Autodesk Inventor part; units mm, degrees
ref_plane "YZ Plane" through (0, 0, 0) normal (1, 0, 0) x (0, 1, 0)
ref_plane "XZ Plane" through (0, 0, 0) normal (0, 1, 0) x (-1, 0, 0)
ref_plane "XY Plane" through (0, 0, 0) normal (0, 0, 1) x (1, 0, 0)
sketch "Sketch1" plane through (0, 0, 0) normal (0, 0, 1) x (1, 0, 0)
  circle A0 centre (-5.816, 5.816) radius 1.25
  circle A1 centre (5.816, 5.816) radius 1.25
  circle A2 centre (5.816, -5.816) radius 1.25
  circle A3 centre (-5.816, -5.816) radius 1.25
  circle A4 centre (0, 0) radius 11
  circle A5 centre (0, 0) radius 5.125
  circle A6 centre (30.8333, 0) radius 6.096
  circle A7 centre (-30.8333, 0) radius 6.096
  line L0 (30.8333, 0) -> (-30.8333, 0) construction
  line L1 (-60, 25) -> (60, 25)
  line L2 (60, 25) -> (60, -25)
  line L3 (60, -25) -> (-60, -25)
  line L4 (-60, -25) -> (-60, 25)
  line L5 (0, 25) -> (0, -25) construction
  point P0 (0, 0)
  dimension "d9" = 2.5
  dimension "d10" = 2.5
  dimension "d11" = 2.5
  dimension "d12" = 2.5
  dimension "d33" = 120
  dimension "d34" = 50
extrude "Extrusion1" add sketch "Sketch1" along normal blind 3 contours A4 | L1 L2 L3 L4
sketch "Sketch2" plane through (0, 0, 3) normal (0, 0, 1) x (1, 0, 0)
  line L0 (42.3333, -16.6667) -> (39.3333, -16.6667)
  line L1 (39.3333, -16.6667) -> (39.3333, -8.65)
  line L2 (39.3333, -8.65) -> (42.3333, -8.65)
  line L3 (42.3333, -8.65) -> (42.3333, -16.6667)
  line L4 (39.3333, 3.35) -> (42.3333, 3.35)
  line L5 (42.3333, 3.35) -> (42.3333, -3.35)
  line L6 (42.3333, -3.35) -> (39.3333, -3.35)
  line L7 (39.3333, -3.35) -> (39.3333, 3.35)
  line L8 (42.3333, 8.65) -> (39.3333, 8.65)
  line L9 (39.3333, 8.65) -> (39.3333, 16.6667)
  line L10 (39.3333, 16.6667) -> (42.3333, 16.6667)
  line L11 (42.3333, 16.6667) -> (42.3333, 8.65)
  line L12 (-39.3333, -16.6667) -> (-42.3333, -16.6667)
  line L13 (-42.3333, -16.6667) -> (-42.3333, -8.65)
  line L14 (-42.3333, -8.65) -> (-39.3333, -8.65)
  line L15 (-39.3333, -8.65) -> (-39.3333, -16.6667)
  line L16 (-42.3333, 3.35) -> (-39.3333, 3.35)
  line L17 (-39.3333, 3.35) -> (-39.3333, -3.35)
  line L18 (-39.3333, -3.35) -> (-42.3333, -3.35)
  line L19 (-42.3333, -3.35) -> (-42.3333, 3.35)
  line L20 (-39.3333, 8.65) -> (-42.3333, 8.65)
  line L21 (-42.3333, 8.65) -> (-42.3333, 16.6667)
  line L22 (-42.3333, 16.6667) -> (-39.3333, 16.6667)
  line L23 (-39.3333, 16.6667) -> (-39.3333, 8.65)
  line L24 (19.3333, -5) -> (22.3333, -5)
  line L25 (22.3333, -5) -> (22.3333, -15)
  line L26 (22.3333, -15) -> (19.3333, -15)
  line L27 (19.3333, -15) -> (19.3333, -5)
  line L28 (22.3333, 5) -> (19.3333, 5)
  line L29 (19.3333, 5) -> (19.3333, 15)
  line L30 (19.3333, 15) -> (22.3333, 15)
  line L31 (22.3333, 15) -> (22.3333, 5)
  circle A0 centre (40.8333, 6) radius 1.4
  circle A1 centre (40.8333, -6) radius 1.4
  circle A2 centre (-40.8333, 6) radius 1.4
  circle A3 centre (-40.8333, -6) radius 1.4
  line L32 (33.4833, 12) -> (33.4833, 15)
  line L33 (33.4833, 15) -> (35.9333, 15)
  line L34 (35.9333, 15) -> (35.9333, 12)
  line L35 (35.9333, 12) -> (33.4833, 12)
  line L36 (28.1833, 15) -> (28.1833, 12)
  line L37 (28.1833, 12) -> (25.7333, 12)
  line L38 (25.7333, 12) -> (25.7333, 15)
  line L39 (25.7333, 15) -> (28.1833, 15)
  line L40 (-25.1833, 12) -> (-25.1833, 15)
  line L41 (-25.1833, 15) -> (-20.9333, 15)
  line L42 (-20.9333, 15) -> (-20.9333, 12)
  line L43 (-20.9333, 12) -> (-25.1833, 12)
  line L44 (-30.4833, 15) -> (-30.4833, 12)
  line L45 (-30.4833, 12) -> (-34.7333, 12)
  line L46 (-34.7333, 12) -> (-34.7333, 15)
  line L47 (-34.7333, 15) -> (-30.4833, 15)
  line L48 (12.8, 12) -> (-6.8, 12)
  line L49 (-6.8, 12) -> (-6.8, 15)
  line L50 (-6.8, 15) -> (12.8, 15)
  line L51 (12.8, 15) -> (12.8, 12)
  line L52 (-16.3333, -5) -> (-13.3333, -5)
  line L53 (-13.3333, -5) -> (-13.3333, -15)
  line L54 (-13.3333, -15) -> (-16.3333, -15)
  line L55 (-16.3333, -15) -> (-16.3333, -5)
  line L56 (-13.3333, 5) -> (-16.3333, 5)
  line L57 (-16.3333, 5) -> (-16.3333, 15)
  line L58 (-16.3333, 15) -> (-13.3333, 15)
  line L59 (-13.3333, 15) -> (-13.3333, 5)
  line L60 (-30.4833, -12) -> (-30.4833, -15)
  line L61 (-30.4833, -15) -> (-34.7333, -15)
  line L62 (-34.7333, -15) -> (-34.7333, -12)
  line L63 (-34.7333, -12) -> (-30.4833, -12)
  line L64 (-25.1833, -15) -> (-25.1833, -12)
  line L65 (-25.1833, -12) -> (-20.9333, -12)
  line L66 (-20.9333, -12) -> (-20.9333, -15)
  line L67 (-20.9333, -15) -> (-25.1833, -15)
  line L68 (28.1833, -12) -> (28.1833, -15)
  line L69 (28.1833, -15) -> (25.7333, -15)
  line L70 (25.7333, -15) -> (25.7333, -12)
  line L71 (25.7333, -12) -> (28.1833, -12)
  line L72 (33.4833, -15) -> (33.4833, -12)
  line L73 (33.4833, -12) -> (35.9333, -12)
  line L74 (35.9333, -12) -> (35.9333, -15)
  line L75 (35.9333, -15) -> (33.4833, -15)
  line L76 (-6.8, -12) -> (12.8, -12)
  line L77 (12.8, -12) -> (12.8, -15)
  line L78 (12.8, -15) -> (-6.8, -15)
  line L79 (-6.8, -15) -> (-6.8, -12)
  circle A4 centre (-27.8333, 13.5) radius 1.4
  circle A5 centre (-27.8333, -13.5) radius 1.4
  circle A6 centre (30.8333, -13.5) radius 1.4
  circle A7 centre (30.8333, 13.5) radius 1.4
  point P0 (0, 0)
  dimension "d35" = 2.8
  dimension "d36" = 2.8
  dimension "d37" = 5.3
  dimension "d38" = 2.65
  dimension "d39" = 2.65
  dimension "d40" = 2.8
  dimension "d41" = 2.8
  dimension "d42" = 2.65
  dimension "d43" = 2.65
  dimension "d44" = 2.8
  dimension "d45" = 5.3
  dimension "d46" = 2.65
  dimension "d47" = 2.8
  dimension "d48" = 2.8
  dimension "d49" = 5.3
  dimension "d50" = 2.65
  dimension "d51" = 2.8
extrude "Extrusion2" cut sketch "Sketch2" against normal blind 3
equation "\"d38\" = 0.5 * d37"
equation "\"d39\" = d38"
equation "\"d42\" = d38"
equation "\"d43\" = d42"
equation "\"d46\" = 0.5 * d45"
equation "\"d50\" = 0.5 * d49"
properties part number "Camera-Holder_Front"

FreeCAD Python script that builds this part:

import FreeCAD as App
import Part
import Sketcher

V = App.Vector
Q = App.Units.Quantity


def add_polygon(sketch, points):
    """Adds a closed chain of lines whose ends are joined by coincident constraints."""
    first, n = sketch.GeometryCount, len(points)
    for a, b in zip(points, points[1:] + points[:1]):
        sketch.addGeometry(Part.LineSegment(App.Vector(*a, 0), App.Vector(*b, 0)), False)
    for i in range(n):
        sketch.addConstraint(Sketcher.Constraint("Coincident", first + i, 2, first + (i + 1) % n, 1))

doc = App.newDocument("Part")
body = doc.addObject("PartDesign::Body", "Body")

sketch1 = body.newObject("Sketcher::SketchObject", "Sketch")
sketch1.AttachmentSupport = (doc.getObject("XY_Plane"), [""])
sketch1.MapMode = "FlatFace"
add_polygon(sketch1, [(60, 25), (-60, 25), (-60, -25), (60, -25)])
sketch1.addGeometry(Part.Circle(V(-5.8, -5.8, 0), V(0, 0, 1), 1.2), False)
sketch1.addGeometry(Part.Circle(V(5.8, -5.8, 0), V(0, 0, 1), 1.2), False)
sketch1.addGeometry(Part.Circle(V(-5.8, 5.8, 0), V(0, 0, 1), 1.2), False)
sketch1.addGeometry(Part.Circle(V(0, 0, 0), V(0, 0, 1), 5.1), False)
sketch1.addGeometry(Part.Circle(V(5.8, 5.8, 0), V(0, 0, 1), 1.2), False)
sketch1.addGeometry(Part.Circle(V(-30.8, 0, 0), V(0, 0, 1), 6.1), False)
sketch1.addGeometry(Part.Circle(V(30.8, 0, 0), V(0, 0, 1), 6.1), False)
sketch1.addConstraint(Sketcher.Constraint("Horizontal", 0))
sketch1.addConstraint(Sketcher.Constraint("Vertical", 1))
sketch1.addConstraint(Sketcher.Constraint("Horizontal", 2))
sketch1.addConstraint(Sketcher.Constraint("Vertical", 3))
sketch1.addConstraint(Sketcher.Constraint("Coincident", 7, 3, -1, 1))
sketch1.addConstraint(Sketcher.Constraint("Equal", 4, 5))
sketch1.addConstraint(Sketcher.Constraint("Equal", 5, 6))
sketch1.addConstraint(Sketcher.Constraint("Equal", 6, 8))
sketch1.addConstraint(Sketcher.Constraint("Equal", 9, 10))
sketch1.addConstraint(Sketcher.Constraint("Symmetric", 5, 3, 6, 3, -1, 1))
sketch1.addConstraint(Sketcher.Constraint("Symmetric", 4, 3, 8, 3, -1, 1))
sketch1.addConstraint(Sketcher.Constraint("Symmetric", 9, 3, 10, 3, -1, 1))
sketch1.addConstraint(Sketcher.Constraint("Symmetric", 0, 2, 2, 2, -1, 1))
sketch1.addConstraint(Sketcher.Constraint("Symmetric", 4, 3, 5, 3, -2))
sketch1.addConstraint(Sketcher.Constraint("PointOnObject", 9, 3, -1))
sketch1.addConstraint(Sketcher.Constraint("Diameter", 4, Q("2.5 mm")))
sketch1.addConstraint(Sketcher.Constraint("DistanceX", 0, 2, 0, 1, Q("120 mm")))
sketch1.addConstraint(Sketcher.Constraint("DistanceY", 1, 2, 1, 1, Q("50 mm")))
sketch1.addConstraint(Sketcher.Constraint("Diameter", 7, Q("10.25 mm")))
sketch1.addConstraint(Sketcher.Constraint("Diameter", 9, Q("12.192 mm")))
sketch1.addConstraint(Sketcher.Constraint("DistanceX", 4, 3, -1, 1, Q("5.816 mm")))
sketch1.addConstraint(Sketcher.Constraint("DistanceY", 4, 3, -1, 1, Q("5.816 mm")))
sketch1.addConstraint(Sketcher.Constraint("DistanceX", 9, 3, -1, 1, Q("30.8333 mm")))
pad1 = body.newObject("PartDesign::Pad", "Pad")
pad1.Profile = sketch1
pad1.Length = 3

sketch2 = body.newObject("Sketcher::SketchObject", "Sketch001")
sketch2.AttachmentSupport = (doc.getObject("XY_Plane"), [""])
sketch2.MapMode = "FlatFace"
sketch2.AttachmentOffset = App.Placement(V(0, 0, 3), App.Rotation())
add_polygon(sketch2, [(39.3, -16.7), (42.3, -16.7), (42.3, -8.7), (39.3, -8.7)])
add_polygon(sketch2, [(42.3, 3.4), (39.3, 3.4), (39.3, -3.4), (42.3, -3.4)])
add_polygon(sketch2, [(39.3, 8.7), (42.3, 8.7), (42.3, 16.7), (39.3, 16.7)])
add_polygon(sketch2, [(-42.3, -16.7), (-39.3, -16.7), (-39.3, -8.7), (-42.3, -8.7)])
add_polygon(sketch2, [(-39.3, 3.4), (-42.3, 3.4), (-42.3, -3.4), (-39.3, -3.4)])
add_polygon(sketch2, [(-42.3, 8.7), (-39.3, 8.7), (-39.3, 16.7), (-42.3, 16.7)])
add_polygon(sketch2, [(22.3, -5), (19.3, -5), (19.3, -15), (22.3, -15)])
add_polygon(sketch2, [(19.3, 5), (22.3, 5), (22.3, 15), (19.3, 15)])
sketch2.addGeometry(Part.Circle(V(40.8, 6, 0), V(0, 0, 1), 1.4), False)
sketch2.addGeometry(Part.Circle(V(40.8, -6, 0), V(0, 0, 1), 1.4), False)
sketch2.addGeometry(Part.Circle(V(-40.8, 6, 0), V(0, 0, 1), 1.4), False)
sketch2.addGeometry(Part.Circle(V(-40.8, -6, 0), V(0, 0, 1), 1.4), False)
add_polygon(sketch2, [(33.5, 15), (33.5, 12), (35.9, 12), (35.9, 15)])
add_polygon(sketch2, [(28.2, 12), (28.2, 15), (25.7, 15), (25.7, 12)])
add_polygon(sketch2, [(-25.2, 15), (-25.2, 12), (-20.9, 12), (-20.9, 15)])
add_polygon(sketch2, [(-30.5, 12), (-30.5, 15), (-34.7, 15), (-34.7, 12)])
add_polygon(sketch2, [(-6.8, 12), (12.8, 12), (12.8, 15), (-6.8, 15)])
add_polygon(sketch2, [(-13.3, -5), (-16.3, -5), (-16.3, -15), (-13.3, -15)])
add_polygon(sketch2, [(-16.3, 5), (-13.3, 5), (-13.3, 15), (-16.3, 15)])
add_polygon(sketch2, [(-30.5, -15), (-30.5, -12), (-34.7, -12), (-34.7, -15)])
add_polygon(sketch2, [(-25.2, -12), (-25.2, -15), (-20.9, -15), (-20.9, -12)])
add_polygon(sketch2, [(28.2, -15), (28.2, -12), (25.7, -12), (25.7, -15)])
add_polygon(sketch2, [(33.5, -12), (33.5, -15), (35.9, -15), (35.9, -12)])
add_polygon(sketch2, [(12.8, -12), (-6.8, -12), (-6.8, -15), (12.8, -15)])
sketch2.addGeometry(Part.Circle(V(-27.8, 13.5, 0), V(0, 0, 1), 1.4), False)
sketch2.addGeometry(Part.Circle(V(-27.8, -13.5, 0), V(0, 0, 1), 1.4), False)
sketch2.addGeometry(Part.Circle(V(30.8, -13.5, 0), V(0, 0, 1), 1.4), False)
sketch2.addGeometry(Part.Circle(V(30.8, 13.5, 0), V(0, 0, 1), 1.4), False)
sketch2.addConstraint(Sketcher.Constraint("Horizontal", 0))
sketch2.addConstraint(Sketcher.Constraint("Vertical", 1))
sketch2.addConstraint(Sketcher.Constraint("Horizontal", 2))
sketch2.addConstraint(Sketcher.Constraint("Vertical", 3))
sketch2.addConstraint(Sketcher.Constraint("Horizontal", 4))
sketch2.addConstraint(Sketcher.Constraint("Vertical", 5))
sketch2.addConstraint(Sketcher.Constraint("Horizontal", 6))
sketch2.addConstraint(Sketcher.Constraint("Vertical", 7))
sketch2.addConstraint(Sketcher.Constraint("Horizontal", 8))
sketch2.addConstraint(Sketcher.Constraint("Vertical", 9))
sketch2.addConstraint(Sketcher.Constraint("Horizontal", 10))
sketch2.addConstraint(Sketcher.Constraint("Vertical", 11))
sketch2.addConstraint(Sketcher.Constraint("Horizontal", 12))
sketch2.addConstraint(Sketcher.Constraint("Vertical", 13))
sketch2.addConstraint(Sketcher.Constraint("Horizontal", 14))
sketch2.addConstraint(Sketcher.Constraint("Vertical", 15))
sketch2.addConstraint(Sketcher.Constraint("Horizontal", 16))
sketch2.addConstraint(Sketcher.Constraint("Vertical", 17))
sketch2.addConstraint(Sketcher.Constraint("Horizontal", 18))
sketch2.addConstraint(Sketcher.Constraint("Vertical", 19))
sketch2.addConstraint(Sketcher.Constraint("Horizontal", 20))
sketch2.addConstraint(Sketcher.Constraint("Vertical", 21))
sketch2.addConstraint(Sketcher.Constraint("Horizontal", 22))
sketch2.addConstraint(Sketcher.Constraint("Vertical", 23))
sketch2.addConstraint(Sketcher.Constraint("Horizontal", 24))
sketch2.addConstraint(Sketcher.Constraint("Vertical", 25))
sketch2.addConstraint(Sketcher.Constraint("Horizontal", 26))
sketch2.addConstraint(Sketcher.Constraint("Vertical", 27))
sketch2.addConstraint(Sketcher.Constraint("Horizontal", 28))
sketch2.addConstraint(Sketcher.Constraint("Vertical", 29))
sketch2.addConstraint(Sketcher.Constraint("Horizontal", 30))
sketch2.addConstraint(Sketcher.Constraint("Vertical", 31))
sketch2.addConstraint(Sketcher.Constraint("Vertical", 36))
sketch2.addConstraint(Sketcher.Constraint("Horizontal", 37))
sketch2.addConstraint(Sketcher.Constraint("Vertical", 38))
sketch2.addConstraint(Sketcher.Constraint("Horizontal", 39))
sketch2.addConstraint(Sketcher.Constraint("Vertical", 40))
sketch2.addConstraint(Sketcher.Constraint("Horizontal", 41))
sketch2.addConstraint(Sketcher.Constraint("Vertical", 42))
sketch2.addConstraint(Sketcher.Constraint("Horizontal", 43))
sketch2.addConstraint(Sketcher.Constraint("Vertical", 44))
sketch2.addConstraint(Sketcher.Constraint("Horizontal", 45))
sketch2.addConstraint(Sketcher.Constraint("Vertical", 46))
sketch2.addConstraint(Sketcher.Constraint("Horizontal", 47))
sketch2.addConstraint(Sketcher.Constraint("Vertical", 48))
sketch2.addConstraint(Sketcher.Constraint("Horizontal", 49))
sketch2.addConstraint(Sketcher.Constraint("Vertical", 50))
sketch2.addConstraint(Sketcher.Constraint("Horizontal", 51))
sketch2.addConstraint(Sketcher.Constraint("Horizontal", 52))
sketch2.addConstraint(Sketcher.Constraint("Vertical", 53))
sketch2.addConstraint(Sketcher.Constraint("Horizontal", 54))
sketch2.addConstraint(Sketcher.Constraint("Vertical", 55))
sketch2.addConstraint(Sketcher.Constraint("Horizontal", 56))
sketch2.addConstraint(Sketcher.Constraint("Vertical", 57))
sketch2.addConstraint(Sketcher.Constraint("Horizontal", 58))
sketch2.addConstraint(Sketcher.Constraint("Vertical", 59))
sketch2.addConstraint(Sketcher.Constraint("Horizontal", 60))
sketch2.addConstraint(Sketcher.Constraint("Vertical", 61))
sketch2.addConstraint(Sketcher.Constraint("Horizontal", 62))
sketch2.addConstraint(Sketcher.Constraint("Vertical", 63))
sketch2.addConstraint(Sketcher.Constraint("Vertical", 64))
sketch2.addConstraint(Sketcher.Constraint("Horizontal", 65))
sketch2.addConstraint(Sketcher.Constraint("Vertical", 66))
sketch2.addConstraint(Sketcher.Constraint("Horizontal", 67))
sketch2.addConstraint(Sketcher.Constraint("Vertical", 68))
sketch2.addConstraint(Sketcher.Constraint("Horizontal", 69))
sketch2.addConstraint(Sketcher.Constraint("Vertical", 70))
sketch2.addConstraint(Sketcher.Constraint("Horizontal", 71))
sketch2.addConstraint(Sketcher.Constraint("Vertical", 72))
sketch2.addConstraint(Sketcher.Constraint("Horizontal", 73))
sketch2.addConstraint(Sketcher.Constraint("Vertical", 74))
sketch2.addConstraint(Sketcher.Constraint("Horizontal", 75))
sketch2.addConstraint(Sketcher.Constraint("Vertical", 76))
sketch2.addConstraint(Sketcher.Constraint("Horizontal", 77))
sketch2.addConstraint(Sketcher.Constraint("Vertical", 78))
sketch2.addConstraint(Sketcher.Constraint("Horizontal", 79))
sketch2.addConstraint(Sketcher.Constraint("Horizontal", 80))
sketch2.addConstraint(Sketcher.Constraint("Vertical", 81))
sketch2.addConstraint(Sketcher.Constraint("Horizontal", 82))
sketch2.addConstraint(Sketcher.Constraint("Vertical", 83))
sketch2.addConstraint(Sketcher.Constraint("Equal", 32, 33))
sketch2.addConstraint(Sketcher.Constraint("Equal", 33, 34))
sketch2.addConstraint(Sketcher.Constraint("Equal", 34, 35))
sketch2.addConstraint(Sketcher.Constraint("Equal", 35, 84))
sketch2.addConstraint(Sketcher.Constraint("Equal", 84, 85))
sketch2.addConstraint(Sketcher.Constraint("Equal", 85, 86))
sketch2.addConstraint(Sketcher.Constraint("Equal", 86, 87))
sketch2.addConstraint(Sketcher.Constraint("Symmetric", 33, 3, 34, 3, -1, 1))
sketch2.addConstraint(Sketcher.Constraint("Symmetric", 32, 3, 35, 3, -1, 1))
sketch2.addConstraint(Sketcher.Constraint("Symmetric", 10, 2, 12, 2, -1, 1))
sketch2.addConstraint(Sketcher.Constraint("Symmetric", 8, 2, 14, 2, -1, 1))
sketch2.addConstraint(Sketcher.Constraint("Symmetric", 6, 2, 16, 2, -1, 1))
sketch2.addConstraint(Sketcher.Constraint("Symmetric", 4, 2, 18, 2, -1, 1))
sketch2.addConstraint(Sketcher.Constraint("Symmetric", 2, 2, 20, 2, -1, 1))
sketch2.addConstraint(Sketcher.Constraint("Symmetric", 0, 2, 22, 2, -1, 1))
sketch2.addConstraint(Sketcher.Constraint("Symmetric", 32, 3, 34, 3, -2))
sketch2.addConstraint(Sketcher.Constraint("Symmetric", 3, 2, 12, 2, -2))
sketch2.addConstraint(Sketcher.Constraint("Symmetric", 1, 2, 14, 2, -2))
sketch2.addConstraint(Sketcher.Constraint("Symmetric", 84, 3, 85, 3, -1))
sketch2.addConstraint(Sketcher.Constraint("Symmetric", 86, 3, 87, 3, -1))
sketch2.addConstraint(Sketcher.Constraint("Symmetric", 27, 2, 28, 2, -1))
sketch2.addConstraint(Sketcher.Constraint("Symmetric", 25, 2, 30, 2, -1))
sketch2.addConstraint(Sketcher.Constraint("Symmetric", 59, 2, 60, 2, -1))
sketch2.addConstraint(Sketcher.Constraint("Symmetric", 57, 2, 62, 2, -1))
sketch2.addConstraint(Sketcher.Constraint("Symmetric", 51, 2, 64, 2, -1))
sketch2.addConstraint(Sketcher.Constraint("Symmetric", 49, 2, 66, 2, -1))
sketch2.addConstraint(Sketcher.Constraint("Symmetric", 47, 2, 68, 2, -1))
sketch2.addConstraint(Sketcher.Constraint("Symmetric", 45, 2, 70, 2, -1))
sketch2.addConstraint(Sketcher.Constraint("Symmetric", 43, 2, 72, 2, -1))
sketch2.addConstraint(Sketcher.Constraint("Symmetric", 41, 2, 74, 2, -1))
sketch2.addConstraint(Sketcher.Constraint("Symmetric", 39, 2, 76, 2, -1))
sketch2.addConstraint(Sketcher.Constraint("Symmetric", 37, 2, 78, 2, -1))
sketch2.addConstraint(Sketcher.Constraint("Symmetric", 55, 2, 80, 2, -1))
sketch2.addConstraint(Sketcher.Constraint("Symmetric", 53, 2, 82, 2, -1))
sketch2.addConstraint(Sketcher.Constraint("Horizontal", 85, 3, 86, 3))
sketch2.addConstraint(Sketcher.Constraint("Horizontal", 7, 2, 16, 2))
sketch2.addConstraint(Sketcher.Constraint("Horizontal", 30, 2, 38, 2))
sketch2.addConstraint(Sketcher.Constraint("Horizontal", 39, 2, 40, 2))
sketch2.addConstraint(Sketcher.Constraint("Horizontal", 37, 2, 42, 2))
sketch2.addConstraint(Sketcher.Constraint("Horizontal", 43, 2, 44, 2))
sketch2.addConstraint(Sketcher.Constraint("Horizontal", 41, 2, 46, 2))
sketch2.addConstraint(Sketcher.Constraint("Horizontal", 47, 2, 48, 2))
sketch2.addConstraint(Sketcher.Constraint("Horizontal", 45, 2, 50, 2))
sketch2.addConstraint(Sketcher.Constraint("Horizontal", 51, 2, 52, 2))
sketch2.addConstraint(Sketcher.Constraint("Horizontal", 49, 2, 53, 2))
sketch2.addConstraint(Sketcher.Constraint("Horizontal", 27, 2, 56, 2))
sketch2.addConstraint(Sketcher.Constraint("Horizontal", 26, 2, 57, 2))
sketch2.addConstraint(Sketcher.Constraint("Vertical", 3, 2, 4, 2))
sketch2.addConstraint(Sketcher.Constraint("Vertical", 1, 2, 6, 2))
sketch2.addConstraint(Sketcher.Constraint("Equal", 22, 24))
sketch2.addConstraint(Sketcher.Constraint("Equal", 39, 41))
sketch2.addConstraint(Sketcher.Constraint("Equal", 47, 49))
sketch2.addConstraint(Sketcher.Constraint("Equal", 30, 56))
sketch2.addConstraint(Sketcher.Constraint("Equal", 62, 36))
sketch2.addConstraint(Sketcher.Constraint("Diameter", 32, Q("2.8 mm")))
sketch2.addConstraint(Sketcher.Constraint("DistanceX", 0, 1, 0, 2, Q("3 mm")))
sketch2.addConstraint(Sketcher.Constraint("DistanceY", 25, 2, 25, 1, Q("10 mm")))
sketch2.addConstraint(Sketcher.Constraint("DistanceX", 52, 1, 52, 2, Q("19.6 mm")))
sketch2.addConstraint(Sketcher.Constraint("DistanceY", 5, 2, 5, 1, Q("6.7 mm")))
sketch2.addConstraint(Sketcher.Constraint("DistanceY", -1, 1, 32, 3, Q("6 mm")))
sketch2.addConstraint(Sketcher.Constraint("DistanceY", 24, 2, -1, 1, Q("5 mm")))
sketch2.addConstraint(Sketcher.Constraint("DistanceX", 37, 1, 37, 2, Q("2.45 mm")))
sketch2.addConstraint(Sketcher.Constraint("DistanceX", 45, 1, 45, 2, Q("4.25 mm")))
sketch2.addConstraint(Sketcher.Constraint("DistanceY", -1, 1, 84, 3, Q("13.5 mm")))
sketch2.addConstraint(Sketcher.Constraint("DistanceX", -1, 1, 52, 2, Q("12.8 mm")))
sketch2.addConstraint(Sketcher.Constraint("DistanceY", 1, 2, -1, 1, Q("8.65 mm")))
sketch2.addConstraint(Sketcher.Constraint("DistanceY", 1, 1, 1, 2, Q("8.0167 mm")))
sketch2.addConstraint(Sketcher.Constraint("DistanceX", -1, 1, 32, 3, Q("40.8333 mm")))
sketch2.addConstraint(Sketcher.Constraint("DistanceX", 84, 3, -1, 1, Q("27.8333 mm")))
sketch2.addConstraint(Sketcher.Constraint("DistanceX", -1, 1, 86, 3, Q("30.8333 mm")))
sketch2.addConstraint(Sketcher.Constraint("DistanceX", -1, 1, 0, 2, Q("42.3333 mm")))
sketch2.addConstraint(Sketcher.Constraint("DistanceX", -1, 1, 24, 2, Q("19.3333 mm")))
sketch2.addConstraint(Sketcher.Constraint("DistanceX", -1, 1, 36, 2, Q("33.4833 mm")))
sketch2.addConstraint(Sketcher.Constraint("DistanceX", -1, 1, 40, 2, Q("28.1833 mm")))
sketch2.addConstraint(Sketcher.Constraint("DistanceX", 44, 2, -1, 1, Q("25.1833 mm")))
sketch2.addConstraint(Sketcher.Constraint("DistanceX", 48, 2, -1, 1, Q("30.4833 mm")))
sketch2.addConstraint(Sketcher.Constraint("DistanceX", 56, 2, -1, 1, Q("16.3333 mm")))
pocket1 = body.newObject("PartDesign::Pocket", "Pocket")
pocket1.Profile = sketch2
pocket1.Length = 3

doc.recompute()
